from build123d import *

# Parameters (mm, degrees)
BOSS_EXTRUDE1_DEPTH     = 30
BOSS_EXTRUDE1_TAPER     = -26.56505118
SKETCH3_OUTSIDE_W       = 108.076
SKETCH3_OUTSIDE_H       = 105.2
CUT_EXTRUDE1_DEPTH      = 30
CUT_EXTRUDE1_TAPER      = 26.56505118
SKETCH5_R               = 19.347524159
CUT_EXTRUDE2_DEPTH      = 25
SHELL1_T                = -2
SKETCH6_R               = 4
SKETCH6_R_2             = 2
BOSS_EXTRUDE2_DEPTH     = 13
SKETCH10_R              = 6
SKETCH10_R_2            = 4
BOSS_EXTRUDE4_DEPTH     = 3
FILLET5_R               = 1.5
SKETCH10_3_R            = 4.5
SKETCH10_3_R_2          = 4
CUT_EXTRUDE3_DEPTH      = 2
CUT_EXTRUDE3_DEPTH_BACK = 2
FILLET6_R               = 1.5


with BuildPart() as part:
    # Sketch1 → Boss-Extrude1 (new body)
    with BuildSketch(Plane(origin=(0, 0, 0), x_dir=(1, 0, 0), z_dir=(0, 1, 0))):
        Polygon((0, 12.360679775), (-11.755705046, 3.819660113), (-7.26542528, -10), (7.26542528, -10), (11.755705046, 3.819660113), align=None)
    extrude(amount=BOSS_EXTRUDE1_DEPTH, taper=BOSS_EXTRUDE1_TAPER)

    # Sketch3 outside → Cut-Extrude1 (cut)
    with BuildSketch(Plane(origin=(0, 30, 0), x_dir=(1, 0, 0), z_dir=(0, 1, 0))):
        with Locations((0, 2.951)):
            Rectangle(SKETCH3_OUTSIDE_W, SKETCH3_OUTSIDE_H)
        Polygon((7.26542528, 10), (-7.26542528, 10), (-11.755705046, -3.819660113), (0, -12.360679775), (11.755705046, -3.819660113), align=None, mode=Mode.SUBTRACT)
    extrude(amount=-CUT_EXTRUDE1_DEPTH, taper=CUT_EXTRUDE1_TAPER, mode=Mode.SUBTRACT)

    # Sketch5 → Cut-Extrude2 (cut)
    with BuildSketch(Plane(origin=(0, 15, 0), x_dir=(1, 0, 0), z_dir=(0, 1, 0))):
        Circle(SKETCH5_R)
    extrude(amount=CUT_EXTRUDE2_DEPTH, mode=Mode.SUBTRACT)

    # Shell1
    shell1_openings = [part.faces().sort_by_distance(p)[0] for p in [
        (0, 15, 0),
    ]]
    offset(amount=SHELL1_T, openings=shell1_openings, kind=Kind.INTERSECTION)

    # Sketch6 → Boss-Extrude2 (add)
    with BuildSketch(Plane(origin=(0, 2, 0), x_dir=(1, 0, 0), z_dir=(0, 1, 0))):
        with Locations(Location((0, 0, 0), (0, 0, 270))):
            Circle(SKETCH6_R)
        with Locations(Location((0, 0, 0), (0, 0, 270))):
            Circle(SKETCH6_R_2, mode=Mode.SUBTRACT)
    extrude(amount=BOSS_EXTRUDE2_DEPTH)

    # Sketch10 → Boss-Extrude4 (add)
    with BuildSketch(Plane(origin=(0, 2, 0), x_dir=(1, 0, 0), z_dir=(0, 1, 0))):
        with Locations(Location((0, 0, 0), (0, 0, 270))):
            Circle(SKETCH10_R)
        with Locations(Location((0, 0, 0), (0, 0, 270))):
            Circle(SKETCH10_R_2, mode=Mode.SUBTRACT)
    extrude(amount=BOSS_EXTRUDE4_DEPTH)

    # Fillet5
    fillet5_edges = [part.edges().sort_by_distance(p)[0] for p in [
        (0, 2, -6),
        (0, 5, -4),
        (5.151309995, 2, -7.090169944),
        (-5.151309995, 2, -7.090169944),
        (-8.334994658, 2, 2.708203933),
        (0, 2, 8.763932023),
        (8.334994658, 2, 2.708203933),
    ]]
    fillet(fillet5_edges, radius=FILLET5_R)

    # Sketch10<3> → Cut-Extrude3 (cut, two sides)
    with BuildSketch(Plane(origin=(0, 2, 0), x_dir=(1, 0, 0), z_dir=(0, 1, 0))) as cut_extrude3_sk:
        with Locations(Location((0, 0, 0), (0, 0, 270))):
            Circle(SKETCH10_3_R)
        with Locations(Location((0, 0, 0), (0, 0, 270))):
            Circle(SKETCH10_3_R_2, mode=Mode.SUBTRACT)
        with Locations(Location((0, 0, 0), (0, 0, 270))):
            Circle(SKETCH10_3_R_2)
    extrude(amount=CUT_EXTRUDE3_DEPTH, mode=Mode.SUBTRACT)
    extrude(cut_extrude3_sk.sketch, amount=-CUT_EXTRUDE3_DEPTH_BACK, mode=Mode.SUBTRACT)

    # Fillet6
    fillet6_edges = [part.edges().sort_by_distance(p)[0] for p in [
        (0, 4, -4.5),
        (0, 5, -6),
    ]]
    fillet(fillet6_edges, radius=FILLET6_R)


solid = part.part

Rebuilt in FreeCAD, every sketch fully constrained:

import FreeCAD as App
import Part
import Sketcher

V = App.Vector
Q = App.Units.Quantity


def edges_at(feature, points):
    """Names of the edges that pass closest to the given points."""
    edges = feature.Shape.Edges
    near = lambda p: min(range(len(edges)), key=lambda i: edges[i].distToShape(Part.Vertex(*p))[0])
    return sorted({f"Edge{near(p) + 1}" for p in points})


def faces_at(feature, points):
    """Names of the faces that lie closest to the given points."""
    faces = feature.Shape.Faces
    near = lambda p: min(range(len(faces)), key=lambda i: faces[i].distToShape(Part.Vertex(*p))[0])
    return sorted({f"Face{near(p) + 1}" for p in points})


def add_polygon(sketch, points):
    """Adds a closed chain of lines whose ends are joined by coincident constraints."""
    first, n = sketch.GeometryCount, len(points)
    for a, b in zip(points, points[1:] + points[:1]):
        sketch.addGeometry(Part.LineSegment(App.Vector(*a, 0), App.Vector(*b, 0)), False)
    for i in range(n):
        sketch.addConstraint(Sketcher.Constraint("Coincident", first + i, 2, first + (i + 1) % n, 1))

doc = App.newDocument("Part")
body = doc.addObject("PartDesign::Body", "Body")

# Sketch on XZ plane
sketch1 = body.newObject("Sketcher::SketchObject", "Sketch")
sketch1.AttachmentSupport = (doc.getObject("XZ_Plane"), [""])
sketch1.MapMode = "FlatFace"
add_polygon(sketch1, [(0, -12), (-12, -4), (-7, 10), (7, 10), (12, -4)])  # lines 0-4
sketch1.addConstraint([
    Sketcher.Constraint("Horizontal", 2),
    Sketcher.Constraint("Symmetric", 0, 2, 3, 2, -2),
    Sketcher.Constraint("PointOnObject", 4, 2, -2),
    Sketcher.Constraint("Equal", 0, 1),
    Sketcher.Constraint("Equal", 1, 3),
    Sketcher.Constraint("Angle", 0, Q("144 deg")),
    Sketcher.Constraint("Angle", 1, Q("72 deg")),
    Sketcher.Constraint("DistanceY", -1, 1, 1, 2, 10.0),
    Sketcher.Constraint("DistanceX", 2, 1, 2, 2, 14.530851),
])
pad1 = body.newObject("PartDesign::Pad", "Pad")
pad1.Profile = sketch1
pad1.Length = 30
pad1.Reversed = True
pad1.TaperAngle = 26.565051

# Sketch on XZ plane
sketch2 = body.newObject("Sketcher::SketchObject", "Sketch001")
sketch2.AttachmentSupport = (doc.getObject("XZ_Plane"), [""])
sketch2.MapMode = "FlatFace"
sketch2.AttachmentOffset = App.Placement(V(0, 0, -30), App.Rotation())
add_polygon(sketch2, [(-54, -56), (-54, 50), (54, 50), (54, -56)])  # lines 0-3
add_polygon(sketch2, [(-7, -10), (7, -10), (12, 4), (0, 12), (-12, 4)])  # lines 4-8
sketch2.addConstraint([
    Sketcher.Constraint("Vertical", 0),
    Sketcher.Constraint("Horizontal", 1),
    Sketcher.Constraint("Vertical", 2),
    Sketcher.Constraint("Horizontal", 3),
    Sketcher.Constraint("Horizontal", 4),
    Sketcher.Constraint("Symmetric", 5, 2, 7, 2, -2),
    Sketcher.Constraint("PointOnObject", 6, 2, -2),
    Sketcher.Constraint("Equal", 5, 6),
    Sketcher.Constraint("Equal", 7, 8),
    Sketcher.Constraint("Angle", 5, Q("72 deg")),
    Sketcher.Constraint("Angle", 6, Q("144 deg")),
    Sketcher.Constraint("DistanceY", 0, 1, 0, 2, 105.2),
    Sketcher.Constraint("DistanceY", 4, 2, -1, 1, 10.0),
    Sketcher.Constraint("DistanceX", 1, 1, 1, 2, 108.076),
    Sketcher.Constraint("DistanceX", 0, 2, -1, 1, 54.038),
    Sketcher.Constraint("DistanceY", -1, 1, 0, 2, 49.649),
    Sketcher.Constraint("DistanceX", 4, 1, 4, 2, 14.530851),
])
pocket1 = body.newObject("PartDesign::Pocket", "Pocket")
pocket1.Profile = sketch2
pocket1.Length = 30
pocket1.Reversed = True
pocket1.TaperAngle = 26.565051

# Sketch on XZ plane
sketch3 = body.newObject("Sketcher::SketchObject", "Sketch002")
sketch3.AttachmentSupport = (doc.getObject("XZ_Plane"), [""])
sketch3.MapMode = "FlatFace"
sketch3.AttachmentOffset = App.Placement(V(0, 0, -15), App.Rotation())
sketch3.addGeometry(Part.Circle(V(0, 0, 0), V(0, 0, 1), 19), False)
sketch3.addConstraint([
    Sketcher.Constraint("Coincident", 0, 3, -1, 1),
    Sketcher.Constraint("Diameter", 0, 38.695048),
])
pocket2 = body.newObject("PartDesign::Pocket", "Pocket001")
pocket2.Profile = sketch3
pocket2.Length = 25
doc.recompute()

thickness = body.newObject("PartDesign::Thickness", "Thickness")
thickness.Base = (pocket2, faces_at(pocket2, [(0, 15, 0)]))
thickness.Value = 2
thickness.Reversed = True
thickness.Join = "Intersection"

# Sketch on XZ plane
sketch4 = body.newObject("Sketcher::SketchObject", "Sketch003")
sketch4.AttachmentSupport = (doc.getObject("XZ_Plane"), [""])
sketch4.MapMode = "FlatFace"
sketch4.AttachmentOffset = App.Placement(V(0, 0, -2), App.Rotation())
sketch4.addGeometry([
    Part.Circle(V(0, 0, 0), V(0, 0, 1), 4),
    Part.Circle(V(0, 0, 0), V(0, 0, 1), 2),
], False)
sketch4.addConstraint([
    Sketcher.Constraint("Coincident", 0, 3, -1, 1),
    Sketcher.Constraint("Coincident", 1, 3, -1, 1),
    Sketcher.Constraint("Diameter", 0, 8.0),
    Sketcher.Constraint("Diameter", 1, 4.0),
])
pad2 = body.newObject("PartDesign::Pad", "Pad001")
pad2.Profile = sketch4
pad2.Length = 13
pad2.Reversed = True

# Sketch on XZ plane
sketch5 = body.newObject("Sketcher::SketchObject", "Sketch004")
sketch5.AttachmentSupport = (doc.getObject("XZ_Plane"), [""])
sketch5.MapMode = "FlatFace"
sketch5.AttachmentOffset = App.Placement(V(0, 0, -2), App.Rotation())
sketch5.addGeometry([
    Part.Circle(V(0, 0, 0), V(0, 0, 1), 6),
    Part.Circle(V(0, 0, 0), V(0, 0, 1), 4),
], False)
sketch5.addConstraint([
    Sketcher.Constraint("Coincident", 0, 3, -1, 1),
    Sketcher.Constraint("Coincident", 1, 3, -1, 1),
    Sketcher.Constraint("Diameter", 0, 12.0),
    Sketcher.Constraint("Diameter", 1, 8.0),
])
pad3 = body.newObject("PartDesign::Pad", "Pad002")
pad3.Profile = sketch5
pad3.Length = 3
pad3.Reversed = True
doc.recompute()

fillet = body.newObject("PartDesign::Fillet", "Fillet")
fillet.Base = (pad3, edges_at(pad3, [
    (0, 2, -6),
    (0, 5, -4),
    (5.151, 2, -7.09),
    (-5.151, 2, -7.09),
    (-8.335, 2, 2.708),
    (0, 2, 8.764),
    (8.335, 2, 2.708),
]))
fillet.Radius = 1.5

# Sketch on XZ plane
sketch6 = body.newObject("Sketcher::SketchObject", "Sketch005")
sketch6.AttachmentSupport = (doc.getObject("XZ_Plane"), [""])
sketch6.MapMode = "FlatFace"
sketch6.AttachmentOffset = App.Placement(V(0, 0, -2), App.Rotation())
sketch6.addGeometry(Part.Circle(V(0, 0, 0), V(0, 0, 1), 4.5), False)
sketch6.addConstraint([
    Sketcher.Constraint("Coincident", 0, 3, -1, 1),
    Sketcher.Constraint("Diameter", 0, 9.0),
])
pocket3 = body.newObject("PartDesign::Pocket", "Pocket002")
pocket3.Profile = sketch6
pocket3.Type = "TwoLengths"
pocket3.Length = 2
pocket3.Length2 = 2
doc.recompute()

fillet2 = body.newObject("PartDesign::Fillet", "Fillet001")
fillet2.Base = (pocket3, edges_at(pocket3, [(0, 4, -4.5), (0, 5, -6)]))
fillet2.Radius = 1.5

doc.recompute()
